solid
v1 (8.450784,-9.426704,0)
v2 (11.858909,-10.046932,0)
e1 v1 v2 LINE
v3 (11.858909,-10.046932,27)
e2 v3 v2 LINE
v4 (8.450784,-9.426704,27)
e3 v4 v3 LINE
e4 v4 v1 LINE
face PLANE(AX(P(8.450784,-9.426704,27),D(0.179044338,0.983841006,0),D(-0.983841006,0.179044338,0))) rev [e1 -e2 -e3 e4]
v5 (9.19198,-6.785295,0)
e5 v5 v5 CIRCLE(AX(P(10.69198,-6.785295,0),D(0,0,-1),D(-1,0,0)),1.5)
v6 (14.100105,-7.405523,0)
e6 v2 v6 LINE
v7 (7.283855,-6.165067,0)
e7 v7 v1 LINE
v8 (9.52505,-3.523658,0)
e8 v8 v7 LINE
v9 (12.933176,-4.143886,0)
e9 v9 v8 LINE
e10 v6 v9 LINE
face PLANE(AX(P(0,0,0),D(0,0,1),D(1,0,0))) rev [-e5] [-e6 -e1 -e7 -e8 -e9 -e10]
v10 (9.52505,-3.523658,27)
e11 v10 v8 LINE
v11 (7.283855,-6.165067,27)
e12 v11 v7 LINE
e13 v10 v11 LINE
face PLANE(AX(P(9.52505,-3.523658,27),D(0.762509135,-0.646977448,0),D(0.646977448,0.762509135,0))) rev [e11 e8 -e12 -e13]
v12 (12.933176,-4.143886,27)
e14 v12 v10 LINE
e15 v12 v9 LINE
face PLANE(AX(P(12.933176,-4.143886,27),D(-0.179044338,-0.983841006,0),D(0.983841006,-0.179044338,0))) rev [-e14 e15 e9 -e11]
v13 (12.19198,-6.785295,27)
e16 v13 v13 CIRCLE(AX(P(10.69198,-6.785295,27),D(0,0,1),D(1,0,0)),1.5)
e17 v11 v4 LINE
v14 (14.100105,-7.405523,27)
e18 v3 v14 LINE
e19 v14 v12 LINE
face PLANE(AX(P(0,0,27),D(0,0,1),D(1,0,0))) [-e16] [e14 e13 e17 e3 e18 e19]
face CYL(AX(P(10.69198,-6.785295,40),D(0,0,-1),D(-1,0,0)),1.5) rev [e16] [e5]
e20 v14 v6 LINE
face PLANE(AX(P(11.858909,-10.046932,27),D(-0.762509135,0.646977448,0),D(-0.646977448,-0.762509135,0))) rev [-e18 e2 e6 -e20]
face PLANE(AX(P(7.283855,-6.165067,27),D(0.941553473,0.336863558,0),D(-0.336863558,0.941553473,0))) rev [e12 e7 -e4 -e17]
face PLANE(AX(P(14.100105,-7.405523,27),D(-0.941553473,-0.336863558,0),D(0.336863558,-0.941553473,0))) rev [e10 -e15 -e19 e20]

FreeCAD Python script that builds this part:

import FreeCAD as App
import Part
import Sketcher


def add_polygon(sketch, points):
    """Adds a closed chain of lines whose ends are joined by coincident constraints."""
    first, n = sketch.GeometryCount, len(points)
    for a, b in zip(points, points[1:] + points[:1]):
        sketch.addGeometry(Part.LineSegment(App.Vector(*a, 0), App.Vector(*b, 0)), False)
    for i in range(n):
        sketch.addConstraint(Sketcher.Constraint("Coincident", first + i, 2, first + (i + 1) % n, 1))

doc = App.newDocument("Part")
body = doc.addObject("PartDesign::Body", "Body")

sketch1 = body.newObject("Sketcher::SketchObject", "Sketch")
sketch1.AttachmentSupport = (doc.getObject("XY_Plane"), [""])
sketch1.MapMode = "FlatFace"
add_polygon(sketch1, [(12.9, -4.1), (9.5, -3.5), (7.3, -6.2), (8.5, -9.4), (11.9, -10), (14.1, -7.4)])
sketch1.addConstraint([
    Sketcher.Constraint("Parallel", 0, 3),
    Sketcher.Constraint("Parallel", 1, 4),
    Sketcher.Constraint("Parallel", 2, 5),
    Sketcher.Constraint("Equal", 0, 1),
    Sketcher.Constraint("Equal", 1, 2),
    Sketcher.Constraint("Equal", 2, 3),
    Sketcher.Constraint("Distance", 0, 3.464102),
    Sketcher.Constraint("DistanceX", -1, 1, 0, 2, 9.52505),
    Sketcher.Constraint("DistanceY", 0, 2, -1, 1, 3.523658),
    Sketcher.Constraint("DistanceX", -1, 1, 3, 2, 11.858909),
    Sketcher.Constraint("DistanceY", 3, 2, -1, 1, 10.046932),
    Sketcher.Constraint("DistanceY", 1, 2, 0, 2, 2.641409),
])
pad1 = body.newObject("PartDesign::Pad", "Pad")
pad1.Profile = sketch1
pad1.Length = 27

sketch2 = body.newObject("Sketcher::SketchObject", "Sketch001")
sketch2.AttachmentSupport = (doc.getObject("XY_Plane"), [""])
sketch2.MapMode = "FlatFace"
sketch2.addGeometry(Part.Circle(App.Vector(10.7, -6.8, 0), App.Vector(0, 0, 1), 1.5), False)
sketch2.addConstraint([
    Sketcher.Constraint("Diameter", 0, 3.0),
    Sketcher.Constraint("DistanceX", -1, 1, 0, 3, 10.69198),
    Sketcher.Constraint("DistanceY", 0, 3, -1, 1, 6.785295),
])
pocket1 = body.newObject("PartDesign::Pocket", "Pocket")
pocket1.Profile = sketch2
pocket1.Length = 40
pocket1.Reversed = True

doc.recompute()
